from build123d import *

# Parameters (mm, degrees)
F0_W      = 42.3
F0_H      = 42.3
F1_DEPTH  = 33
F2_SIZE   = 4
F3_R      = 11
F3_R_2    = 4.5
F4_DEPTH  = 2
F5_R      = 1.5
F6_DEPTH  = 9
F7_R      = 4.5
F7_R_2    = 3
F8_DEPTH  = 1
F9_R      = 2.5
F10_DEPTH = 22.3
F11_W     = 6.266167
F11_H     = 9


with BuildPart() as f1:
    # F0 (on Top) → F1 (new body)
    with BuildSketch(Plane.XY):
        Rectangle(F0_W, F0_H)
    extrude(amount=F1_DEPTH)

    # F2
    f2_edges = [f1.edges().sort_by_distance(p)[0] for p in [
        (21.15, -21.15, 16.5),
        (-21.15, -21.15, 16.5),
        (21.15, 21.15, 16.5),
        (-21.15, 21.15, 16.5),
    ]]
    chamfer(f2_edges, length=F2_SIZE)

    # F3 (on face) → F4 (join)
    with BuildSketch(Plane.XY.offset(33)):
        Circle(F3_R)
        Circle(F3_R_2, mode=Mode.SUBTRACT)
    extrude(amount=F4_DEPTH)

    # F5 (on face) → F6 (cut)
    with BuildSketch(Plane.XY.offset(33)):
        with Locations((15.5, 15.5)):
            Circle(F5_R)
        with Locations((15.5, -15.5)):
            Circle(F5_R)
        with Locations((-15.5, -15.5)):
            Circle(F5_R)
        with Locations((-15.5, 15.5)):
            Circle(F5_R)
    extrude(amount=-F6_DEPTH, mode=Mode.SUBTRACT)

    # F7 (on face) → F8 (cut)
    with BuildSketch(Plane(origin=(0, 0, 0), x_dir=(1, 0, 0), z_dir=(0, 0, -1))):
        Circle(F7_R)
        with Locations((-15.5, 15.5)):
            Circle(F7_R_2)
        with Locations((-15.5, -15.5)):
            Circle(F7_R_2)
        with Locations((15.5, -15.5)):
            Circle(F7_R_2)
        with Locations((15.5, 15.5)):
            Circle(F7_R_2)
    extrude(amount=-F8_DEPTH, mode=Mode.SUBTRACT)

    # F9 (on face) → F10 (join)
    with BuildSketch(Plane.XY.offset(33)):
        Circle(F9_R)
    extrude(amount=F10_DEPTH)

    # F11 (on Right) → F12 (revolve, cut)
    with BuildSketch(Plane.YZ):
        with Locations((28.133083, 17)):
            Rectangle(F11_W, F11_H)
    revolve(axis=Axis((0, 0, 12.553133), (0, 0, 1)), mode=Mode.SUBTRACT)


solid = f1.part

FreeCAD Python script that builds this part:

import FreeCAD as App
import Part
import Sketcher


def edges_at(feature, points):
    """Names of the edges that pass closest to the given points."""
    edges = feature.Shape.Edges
    near = lambda p: min(range(len(edges)), key=lambda i: edges[i].distToShape(Part.Vertex(*p))[0])
    return sorted({f"Edge{near(p) + 1}" for p in points})

doc = App.newDocument("Part")
body = doc.addObject("PartDesign::Body", "Body")

# Sketch on XY plane
sketch1 = body.newObject("Sketcher::SketchObject", "Sketch")
sketch1.AttachmentSupport = (doc.getObject("XY_Plane"), [""])
sketch1.MapMode = "FlatFace"
sketch1.addGeometry(Part.LineSegment(App.Vector(-21.15, 21.15, 0), App.Vector(-21.15, -21.15, 0)), False)
sketch1.addGeometry(Part.LineSegment(App.Vector(-21.15, -21.15, 0), App.Vector(21.15, -21.15, 0)), False)
sketch1.addGeometry(Part.LineSegment(App.Vector(21.15, -21.15, 0), App.Vector(21.15, 21.15, 0)), False)
sketch1.addGeometry(Part.LineSegment(App.Vector(21.15, 21.15, 0), App.Vector(-21.15, 21.15, 0)), False)
sketch1.addConstraint(Sketcher.Constraint("Coincident", 0, 2, 1, 1))
sketch1.addConstraint(Sketcher.Constraint("Coincident", 1, 2, 2, 1))
sketch1.addConstraint(Sketcher.Constraint("Coincident", 2, 2, 3, 1))
sketch1.addConstraint(Sketcher.Constraint("Coincident", 3, 2, 0, 1))
sketch1.addConstraint(Sketcher.Constraint("Vertical", 0))
sketch1.addConstraint(Sketcher.Constraint("Horizontal", 1))
sketch1.addConstraint(Sketcher.Constraint("Vertical", 2))
sketch1.addConstraint(Sketcher.Constraint("Horizontal", 3))
sketch1.addConstraint(Sketcher.Constraint("Symmetric", 0, 2, 2, 2, -1, 1))
sketch1.addConstraint(Sketcher.Constraint("Equal", 3, 0))
sketch1.addConstraint(Sketcher.Constraint("DistanceX", 1, 1, 1, 2, 42.3))
pad1 = body.newObject("PartDesign::Pad", "Pad")
pad1.Profile = sketch1
pad1.Length = 33
doc.recompute()

chamfer = body.newObject("PartDesign::Chamfer", "Chamfer")
chamfer.Base = (pad1, edges_at(pad1, [
    (21.15, -21.15, 16.5),
    (-21.15, -21.15, 16.5),
    (21.15, 21.15, 16.5),
    (-21.15, 21.15, 16.5),
]))
chamfer.Size = 4

# Sketch on XY plane
sketch2 = body.newObject("Sketcher::SketchObject", "Sketch001")
sketch2.AttachmentSupport = (doc.getObject("XY_Plane"), [""])
sketch2.MapMode = "FlatFace"
sketch2.AttachmentOffset = App.Placement(App.Vector(0, 0, 33), App.Rotation())
sketch2.addGeometry(Part.Circle(App.Vector(0, 0, 0), App.Vector(0, 0, 1), 11), False)
sketch2.addGeometry(Part.Circle(App.Vector(0, 0, 0), App.Vector(0, 0, 1), 4.5), False)
sketch2.addConstraint(Sketcher.Constraint("Coincident", 0, 3, -1, 1))
sketch2.addConstraint(Sketcher.Constraint("Coincident", 1, 3, -1, 1))
sketch2.addConstraint(Sketcher.Constraint("Diameter", 0, 22.0))
sketch2.addConstraint(Sketcher.Constraint("Diameter", 1, 9.0))
pad2 = body.newObject("PartDesign::Pad", "Pad001")
pad2.Profile = sketch2
pad2.Length = 2

# Sketch on XY plane
sketch3 = body.newObject("Sketcher::SketchObject", "Sketch002")
sketch3.AttachmentSupport = (doc.getObject("XY_Plane"), [""])
sketch3.MapMode = "FlatFace"
sketch3.AttachmentOffset = App.Placement(App.Vector(0, 0, 33), App.Rotation())
sketch3.addGeometry(Part.Circle(App.Vector(15.5, 15.5, 0), App.Vector(0, 0, 1), 1.5), False)
sketch3.addGeometry(Part.Circle(App.Vector(15.5, -15.5, 0), App.Vector(0, 0, 1), 1.5), False)
sketch3.addGeometry(Part.Circle(App.Vector(-15.5, -15.5, 0), App.Vector(0, 0, 1), 1.5), False)
sketch3.addGeometry(Part.Circle(App.Vector(-15.5, 15.5, 0), App.Vector(0, 0, 1), 1.5), False)
sketch3.addConstraint(Sketcher.Constraint("Equal", 0, 1))
sketch3.addConstraint(Sketcher.Constraint("Equal", 1, 2))
sketch3.addConstraint(Sketcher.Constraint("Equal", 2, 3))
sketch3.addConstraint(Sketcher.Constraint("Symmetric", 0, 3, 2, 3, -1, 1))
sketch3.addConstraint(Sketcher.Constraint("Symmetric", 1, 3, 3, 3, -1, 1))
sketch3.addConstraint(Sketcher.Constraint("Symmetric", 1, 3, 2, 3, -2))
sketch3.addConstraint(Sketcher.Constraint("Diameter", 0, 3.0))
sketch3.addConstraint(Sketcher.Constraint("DistanceY", 1, 3, 0, 3, 31.0))
sketch3.addConstraint(Sketcher.Constraint("DistanceX", 2, 3, 1, 3, 31.0))
pocket1 = body.newObject("PartDesign::Pocket", "Pocket")
pocket1.Profile = sketch3
pocket1.Length = 9

# Sketch on XY plane
sketch4 = body.newObject("Sketcher::SketchObject", "Sketch003")
sketch4.AttachmentSupport = (doc.getObject("XY_Plane"), [""])
sketch4.MapMode = "FlatFace"
sketch4.addGeometry(Part.Circle(App.Vector(0, 0, 0), App.Vector(0, 0, 1), 4.5), False)
sketch4.addGeometry(Part.Circle(App.Vector(-15.5, -15.5, 0), App.Vector(0, 0, 1), 3), False)
sketch4.addGeometry(Part.Circle(App.Vector(-15.5, 15.5, 0), App.Vector(0, 0, 1), 3), False)
sketch4.addGeometry(Part.Circle(App.Vector(15.5, 15.5, 0), App.Vector(0, 0, 1), 3), False)
sketch4.addGeometry(Part.Circle(App.Vector(15.5, -15.5, 0), App.Vector(0, 0, 1), 3), False)
sketch4.addConstraint(Sketcher.Constraint("Coincident", 0, 3, -1, 1))
sketch4.addConstraint(Sketcher.Constraint("Equal", 1, 2))
sketch4.addConstraint(Sketcher.Constraint("Equal", 2, 3))
sketch4.addConstraint(Sketcher.Constraint("Equal", 3, 4))
sketch4.addConstraint(Sketcher.Constraint("Symmetric", 1, 3, 3, 3, -1, 1))
sketch4.addConstraint(Sketcher.Constraint("Symmetric", 2, 3, 4, 3, -1, 1))
sketch4.addConstraint(Sketcher.Constraint("Symmetric", 2, 3, 3, 3, -2))
sketch4.addConstraint(Sketcher.Constraint("Diameter", 0, 9.0))
sketch4.addConstraint(Sketcher.Constraint("Diameter", 1, 6.0))
sketch4.addConstraint(Sketcher.Constraint("DistanceY", 1, 3, 2, 3, 31.0))
sketch4.addConstraint(Sketcher.Constraint("DistanceX", 2, 3, 3, 3, 31.0))
pocket2 = body.newObject("PartDesign::Pocket", "Pocket001")
pocket2.Profile = sketch4
pocket2.Length = 1
pocket2.Reversed = True

# Sketch on XY plane
sketch5 = body.newObject("Sketcher::SketchObject", "Sketch004")
sketch5.AttachmentSupport = (doc.getObject("XY_Plane"), [""])
sketch5.MapMode = "FlatFace"
sketch5.AttachmentOffset = App.Placement(App.Vector(0, 0, 33), App.Rotation())
sketch5.addGeometry(Part.Circle(App.Vector(0, 0, 0), App.Vector(0, 0, 1), 2.5), False)
sketch5.addConstraint(Sketcher.Constraint("Coincident", 0, 3, -1, 1))
sketch5.addConstraint(Sketcher.Constraint("Diameter", 0, 5.0))
pad3 = body.newObject("PartDesign::Pad", "Pad002")
pad3.Profile = sketch5
pad3.Length = 22.3

# Sketch on YZ plane
sketch6 = body.newObject("Sketcher::SketchObject", "Sketch005")
sketch6.AttachmentSupport = (doc.getObject("YZ_Plane"), [""])
sketch6.MapMode = "FlatFace"
sketch6.addGeometry(Part.LineSegment(App.Vector(25, 21.5, 0), App.Vector(25, 12.5, 0)), False)
sketch6.addGeometry(Part.LineSegment(App.Vector(25, 12.5, 0), App.Vector(31.266167, 12.5, 0)), False)
sketch6.addGeometry(Part.LineSegment(App.Vector(31.266167, 12.5, 0), App.Vector(31.266167, 21.5, 0)), False)
sketch6.addGeometry(Part.LineSegment(App.Vector(31.266167, 21.5, 0), App.Vector(25, 21.5, 0)), False)
sketch6.addConstraint(Sketcher.Constraint("Coincident", 0, 2, 1, 1))
sketch6.addConstraint(Sketcher.Constraint("Coincident", 1, 2, 2, 1))
sketch6.addConstraint(Sketcher.Constraint("Coincident", 2, 2, 3, 1))
sketch6.addConstraint(Sketcher.Constraint("Coincident", 3, 2, 0, 1))
sketch6.addConstraint(Sketcher.Constraint("Vertical", 0))
sketch6.addConstraint(Sketcher.Constraint("Horizontal", 1))
sketch6.addConstraint(Sketcher.Constraint("Vertical", 2))
sketch6.addConstraint(Sketcher.Constraint("Horizontal", 3))
sketch6.addConstraint(Sketcher.Constraint("DistanceY", 0, 2, 0, 1, 9.0))
sketch6.addConstraint(Sketcher.Constraint("DistanceX", -1, 1, 0, 2, 25.0))
sketch6.addConstraint(Sketcher.Constraint("DistanceY", -1, 1, 0, 2, 12.5))
sketch6.addConstraint(Sketcher.Constraint("DistanceX", 1, 1, 1, 2, 6.266167))
groove = body.newObject("PartDesign::Groove", "Groove")
groove.Profile = sketch6
groove.ReferenceAxis = (sketch6, ["V_Axis"])
groove.Angle = 360

doc.recompute()
